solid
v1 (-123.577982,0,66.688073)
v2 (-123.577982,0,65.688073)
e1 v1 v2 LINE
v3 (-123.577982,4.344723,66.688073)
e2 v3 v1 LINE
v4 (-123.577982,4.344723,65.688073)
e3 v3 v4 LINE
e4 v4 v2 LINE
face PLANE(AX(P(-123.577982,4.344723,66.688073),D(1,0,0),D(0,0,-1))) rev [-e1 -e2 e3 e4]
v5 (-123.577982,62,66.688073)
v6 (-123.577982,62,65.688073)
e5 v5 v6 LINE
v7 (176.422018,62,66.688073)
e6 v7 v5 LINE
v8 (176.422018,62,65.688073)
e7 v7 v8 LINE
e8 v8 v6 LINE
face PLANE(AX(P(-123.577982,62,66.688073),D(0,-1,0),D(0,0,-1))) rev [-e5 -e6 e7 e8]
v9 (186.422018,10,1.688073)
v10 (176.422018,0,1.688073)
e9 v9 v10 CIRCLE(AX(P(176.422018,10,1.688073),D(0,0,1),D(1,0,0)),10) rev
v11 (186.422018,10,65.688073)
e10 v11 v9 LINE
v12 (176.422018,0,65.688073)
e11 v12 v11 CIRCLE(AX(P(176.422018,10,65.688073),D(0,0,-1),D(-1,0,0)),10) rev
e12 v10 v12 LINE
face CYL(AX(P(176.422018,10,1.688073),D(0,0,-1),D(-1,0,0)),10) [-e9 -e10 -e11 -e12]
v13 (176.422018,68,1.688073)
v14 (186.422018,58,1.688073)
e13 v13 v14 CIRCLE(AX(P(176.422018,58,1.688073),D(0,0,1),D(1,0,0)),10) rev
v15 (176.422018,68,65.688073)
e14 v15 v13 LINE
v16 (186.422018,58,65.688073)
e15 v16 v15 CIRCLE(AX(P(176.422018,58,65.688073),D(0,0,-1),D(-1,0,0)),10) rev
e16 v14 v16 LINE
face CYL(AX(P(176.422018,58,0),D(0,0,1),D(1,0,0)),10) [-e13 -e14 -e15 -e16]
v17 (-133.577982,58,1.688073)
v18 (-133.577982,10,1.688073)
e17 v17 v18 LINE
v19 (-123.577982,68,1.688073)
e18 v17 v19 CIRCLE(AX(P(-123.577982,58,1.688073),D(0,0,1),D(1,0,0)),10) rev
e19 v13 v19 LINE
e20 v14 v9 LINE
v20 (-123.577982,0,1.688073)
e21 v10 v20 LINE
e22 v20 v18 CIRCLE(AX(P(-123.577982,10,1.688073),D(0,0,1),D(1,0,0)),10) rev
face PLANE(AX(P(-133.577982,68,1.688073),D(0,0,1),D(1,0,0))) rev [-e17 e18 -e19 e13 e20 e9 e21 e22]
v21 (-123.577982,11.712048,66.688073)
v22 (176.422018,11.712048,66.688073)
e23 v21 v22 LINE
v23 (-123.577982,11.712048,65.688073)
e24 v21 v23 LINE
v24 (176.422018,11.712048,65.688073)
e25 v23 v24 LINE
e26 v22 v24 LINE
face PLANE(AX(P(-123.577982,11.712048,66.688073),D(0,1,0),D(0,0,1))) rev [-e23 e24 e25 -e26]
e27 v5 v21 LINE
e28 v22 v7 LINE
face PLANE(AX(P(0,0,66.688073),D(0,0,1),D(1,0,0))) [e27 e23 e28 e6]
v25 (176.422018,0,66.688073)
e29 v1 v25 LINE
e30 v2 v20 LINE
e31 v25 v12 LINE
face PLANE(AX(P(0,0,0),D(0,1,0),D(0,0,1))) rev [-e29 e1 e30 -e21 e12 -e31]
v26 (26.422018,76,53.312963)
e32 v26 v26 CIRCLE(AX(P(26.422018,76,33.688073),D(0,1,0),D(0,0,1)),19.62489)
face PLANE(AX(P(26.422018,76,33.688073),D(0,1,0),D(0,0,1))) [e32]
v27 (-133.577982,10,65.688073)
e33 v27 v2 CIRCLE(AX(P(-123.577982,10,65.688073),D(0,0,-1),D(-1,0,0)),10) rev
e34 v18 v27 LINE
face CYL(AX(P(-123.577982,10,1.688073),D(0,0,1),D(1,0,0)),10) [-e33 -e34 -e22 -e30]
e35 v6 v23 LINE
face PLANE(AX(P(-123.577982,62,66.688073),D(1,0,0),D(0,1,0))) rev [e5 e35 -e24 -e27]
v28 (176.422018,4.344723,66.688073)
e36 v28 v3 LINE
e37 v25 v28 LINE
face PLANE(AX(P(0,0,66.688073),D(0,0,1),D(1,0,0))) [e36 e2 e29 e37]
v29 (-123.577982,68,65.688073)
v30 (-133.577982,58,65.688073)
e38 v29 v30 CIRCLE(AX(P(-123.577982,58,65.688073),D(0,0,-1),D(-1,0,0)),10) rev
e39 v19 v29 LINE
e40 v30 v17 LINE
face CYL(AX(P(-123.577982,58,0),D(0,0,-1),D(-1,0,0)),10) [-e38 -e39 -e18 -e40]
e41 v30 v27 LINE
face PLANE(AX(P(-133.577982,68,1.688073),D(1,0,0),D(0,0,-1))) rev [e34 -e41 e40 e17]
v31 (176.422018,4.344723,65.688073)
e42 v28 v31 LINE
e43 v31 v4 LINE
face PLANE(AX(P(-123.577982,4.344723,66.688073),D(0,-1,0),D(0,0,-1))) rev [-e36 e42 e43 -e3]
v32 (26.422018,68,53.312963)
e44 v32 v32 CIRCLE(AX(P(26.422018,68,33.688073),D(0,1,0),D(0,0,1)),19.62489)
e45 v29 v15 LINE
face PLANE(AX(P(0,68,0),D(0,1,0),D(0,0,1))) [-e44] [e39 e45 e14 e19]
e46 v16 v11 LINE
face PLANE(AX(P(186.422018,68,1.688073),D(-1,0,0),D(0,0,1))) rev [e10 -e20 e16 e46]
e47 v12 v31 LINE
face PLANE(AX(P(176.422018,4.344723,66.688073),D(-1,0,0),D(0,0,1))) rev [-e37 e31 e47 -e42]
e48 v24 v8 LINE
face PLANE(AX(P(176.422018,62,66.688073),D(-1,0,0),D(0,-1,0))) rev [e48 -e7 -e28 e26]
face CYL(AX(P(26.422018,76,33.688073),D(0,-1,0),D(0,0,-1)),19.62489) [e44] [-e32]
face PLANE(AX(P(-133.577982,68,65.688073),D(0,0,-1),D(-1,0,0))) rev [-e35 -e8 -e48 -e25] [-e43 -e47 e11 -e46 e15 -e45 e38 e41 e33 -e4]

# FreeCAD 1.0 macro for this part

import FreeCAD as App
import Part
import Sketcher
from FreeCAD import Vector


def edges_at(feature, points):
    """Names of the edges that pass closest to the given points."""
    edges = feature.Shape.Edges
    near = lambda p: min(range(len(edges)), key=lambda i: edges[i].distToShape(Part.Vertex(*p))[0])
    return sorted({f"Edge{near(p) + 1}" for p in points})


def add_polygon(sketch, points):
    """Adds a closed chain of lines whose ends are joined by coincident constraints."""
    first, n = sketch.GeometryCount, len(points)
    for a, b in zip(points, points[1:] + points[:1]):
        sketch.addGeometry(Part.LineSegment(App.Vector(*a, 0), App.Vector(*b, 0)), False)
    for i in range(n):
        sketch.addConstraint(Sketcher.Constraint("Coincident", first + i, 2, first + (i + 1) % n, 1))

doc = App.newDocument("Part")
body = doc.addObject("PartDesign::Body", "Body")

sketch1 = body.newObject("Sketcher::SketchObject", "Sketch")
sketch1.AttachmentSupport = (doc.getObject("XZ_Plane"), [""])
sketch1.MapMode = "FlatFace"
add_polygon(sketch1, [(-134, 2), (-134, 66), (186, 66), (186, 2)])
sketch1.addConstraint(Sketcher.Constraint("Vertical", 0))
sketch1.addConstraint(Sketcher.Constraint("Horizontal", 1))
sketch1.addConstraint(Sketcher.Constraint("Vertical", 2))
sketch1.addConstraint(Sketcher.Constraint("Horizontal", 3))
sketch1.addConstraint(Sketcher.Constraint("DistanceX", 1, 1, 1, 2, 320.0))
sketch1.addConstraint(Sketcher.Constraint("DistanceY", 0, 1, 0, 2, 64.0))
sketch1.addConstraint(Sketcher.Constraint("DistanceX", 0, 2, -1, 1, 133.577982))
sketch1.addConstraint(Sketcher.Constraint("DistanceY", -1, 1, 0, 2, 65.688073))
pad1 = body.newObject("PartDesign::Pad", "Pad")
pad1.Profile = sketch1
pad1.Length = 68
pad1.Reversed = True
doc.recompute()

fillet = body.newObject("PartDesign::Fillet", "Fillet")
fillet.Base = (pad1, edges_at(pad1, [
    (186.422, 68, 33.688),
    (-133.578, 68, 33.688),
    (186.422, 0, 33.688),
    (-133.578, 0, 33.688),
]))
fillet.Radius = 10

sketch2 = body.newObject("Sketcher::SketchObject", "Sketch001")
sketch2.AttachmentSupport = (doc.getObject("XZ_Plane"), [""])
sketch2.MapMode = "FlatFace"
sketch2.AttachmentOffset = App.Placement(Vector(0, 0, -68), App.Rotation())
sketch2.addGeometry(Part.Circle(Vector(26, 34, 0), Vector(0, 0, 1), 20), False)
sketch2.addConstraint(Sketcher.Constraint("Diameter", 0, 39.24978))
sketch2.addConstraint(Sketcher.Constraint("DistanceX", -1, 1, 0, 3, 26.422018))
sketch2.addConstraint(Sketcher.Constraint("DistanceY", -1, 1, 0, 3, 33.688073))
pad2 = body.newObject("PartDesign::Pad", "Pad001")
pad2.Profile = sketch2
pad2.Length = 8
pad2.Reversed = True

sketch3 = body.newObject("Sketcher::SketchObject", "Sketch002")
sketch3.AttachmentSupport = (doc.getObject("XY_Plane"), [""])
sketch3.MapMode = "FlatFace"
sketch3.AttachmentOffset = App.Placement(Vector(0, 0, 65.688073), App.Rotation())
add_polygon(sketch3, [(-123.6, 62), (-123.6, 11.7), (176.4, 11.7), (176.4, 62)])
add_polygon(sketch3, [(-123.6, 4.3), (-123.6, 0), (176.4, 0), (176.4, 4.3)])
sketch3.addConstraint(Sketcher.Constraint("Vertical", 0))
sketch3.addConstraint(Sketcher.Constraint("Horizontal", 1))
sketch3.addConstraint(Sketcher.Constraint("Vertical", 2))
sketch3.addConstraint(Sketcher.Constraint("Horizontal", 3))
sketch3.addConstraint(Sketcher.Constraint("Vertical", 4))
sketch3.addConstraint(Sketcher.Constraint("Horizontal", 5))
sketch3.addConstraint(Sketcher.Constraint("Vertical", 6))
sketch3.addConstraint(Sketcher.Constraint("Horizontal", 7))
sketch3.addConstraint(Sketcher.Constraint("PointOnObject", 4, 2, -1))
sketch3.addConstraint(Sketcher.Constraint("Vertical", 3, 2, 4, 2))
sketch3.addConstraint(Sketcher.Constraint("Vertical", 2, 2, 5, 2))
sketch3.addConstraint(Sketcher.Constraint("DistanceX", 1, 1, 1, 2, 300.0))
sketch3.addConstraint(Sketcher.Constraint("DistanceY", -1, 1, 2, 2, 62.0))
sketch3.addConstraint(Sketcher.Constraint("DistanceY", 0, 2, 0, 1, 50.287952))
sketch3.addConstraint(Sketcher.Constraint("DistanceY", 4, 2, 4, 1, 4.344723))
sketch3.addConstraint(Sketcher.Constraint("DistanceX", 0, 2, -1, 1, 123.577982))
pad3 = body.newObject("PartDesign::Pad", "Pad002")
pad3.Profile = sketch3
pad3.Length = 1

doc.recompute()
